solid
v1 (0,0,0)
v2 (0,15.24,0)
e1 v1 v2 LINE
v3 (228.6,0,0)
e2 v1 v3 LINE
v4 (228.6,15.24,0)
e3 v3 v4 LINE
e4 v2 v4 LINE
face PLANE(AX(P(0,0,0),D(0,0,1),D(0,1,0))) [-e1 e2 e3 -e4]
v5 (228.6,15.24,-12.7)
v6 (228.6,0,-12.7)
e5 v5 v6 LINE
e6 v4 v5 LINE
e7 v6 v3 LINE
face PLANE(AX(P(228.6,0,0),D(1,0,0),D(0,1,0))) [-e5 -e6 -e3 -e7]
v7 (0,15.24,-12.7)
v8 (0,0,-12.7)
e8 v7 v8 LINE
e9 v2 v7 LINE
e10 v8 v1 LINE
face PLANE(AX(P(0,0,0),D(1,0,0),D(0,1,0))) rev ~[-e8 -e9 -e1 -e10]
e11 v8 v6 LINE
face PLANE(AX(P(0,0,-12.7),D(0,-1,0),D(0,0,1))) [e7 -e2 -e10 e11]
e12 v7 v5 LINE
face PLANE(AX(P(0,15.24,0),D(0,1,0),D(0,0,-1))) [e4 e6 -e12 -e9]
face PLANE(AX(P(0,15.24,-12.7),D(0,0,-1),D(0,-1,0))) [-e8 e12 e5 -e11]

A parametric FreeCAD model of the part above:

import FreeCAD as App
import Part
import Sketcher
Q = App.Units.Quantity


def add_polygon(sketch, points):
    """Adds a closed chain of lines whose ends are joined by coincident constraints."""
    first, n = sketch.GeometryCount, len(points)
    for a, b in zip(points, points[1:] + points[:1]):
        sketch.addGeometry(Part.LineSegment(App.Vector(*a, 0), App.Vector(*b, 0)), False)
    for i in range(n):
        sketch.addConstraint(Sketcher.Constraint("Coincident", first + i, 2, first + (i + 1) % n, 1))

doc = App.newDocument("Part")
body = doc.addObject("PartDesign::Body", "Body")

# Sketch on YZ plane
sketch1 = doc.addObject("Sketcher::SketchObject", "Sketch")
body.addObject(sketch1)
sketch1.AttachmentSupport = (doc.YZ_Plane, [""])
sketch1.MapMode = "FlatFace"
add_polygon(sketch1, [(15, 0), (0, 0), (0, -13), (15, -13)])  # lines 0-3
sketch1.addConstraint(Sketcher.Constraint("Horizontal", 0))
sketch1.addConstraint(Sketcher.Constraint("Vertical", 1))
sketch1.addConstraint(Sketcher.Constraint("Horizontal", 2))
sketch1.addConstraint(Sketcher.Constraint("Vertical", 3))
sketch1.addConstraint(Sketcher.Constraint("Coincident", 0, 2, -1, 1))
sketch1.addConstraint(Sketcher.Constraint("DistanceX", 0, 2, 0, 1, Q("0.6 in")))
sketch1.addConstraint(Sketcher.Constraint("DistanceY", 1, 2, 1, 1, Q("0.5 in")))
pad1 = doc.addObject("PartDesign::Pad", "Pad")
body.addObject(pad1)
pad1.Profile = sketch1
pad1.Length = Q("9 in")

doc.recompute()
